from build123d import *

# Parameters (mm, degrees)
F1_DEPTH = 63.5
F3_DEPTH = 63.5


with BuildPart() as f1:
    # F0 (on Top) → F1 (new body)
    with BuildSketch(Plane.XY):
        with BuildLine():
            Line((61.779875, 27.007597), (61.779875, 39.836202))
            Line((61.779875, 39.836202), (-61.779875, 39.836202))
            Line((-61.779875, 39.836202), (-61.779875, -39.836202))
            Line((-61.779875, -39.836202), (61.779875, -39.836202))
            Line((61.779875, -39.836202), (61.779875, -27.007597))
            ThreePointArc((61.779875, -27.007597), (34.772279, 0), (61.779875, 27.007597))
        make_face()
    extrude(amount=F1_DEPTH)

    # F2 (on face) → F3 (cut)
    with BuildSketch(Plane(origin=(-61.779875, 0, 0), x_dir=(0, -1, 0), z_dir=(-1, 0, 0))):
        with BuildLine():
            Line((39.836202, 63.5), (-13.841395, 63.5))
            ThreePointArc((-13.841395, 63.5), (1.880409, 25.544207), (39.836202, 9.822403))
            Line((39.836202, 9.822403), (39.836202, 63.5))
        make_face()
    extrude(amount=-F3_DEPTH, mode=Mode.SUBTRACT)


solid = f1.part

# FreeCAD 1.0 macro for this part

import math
import FreeCAD as App
import Part
import Sketcher
Q = App.Units.Quantity

doc = App.newDocument("Part")
body = doc.addObject("PartDesign::Body", "Body")

# Sketch on XY plane
sketch1 = body.newObject("Sketcher::SketchObject", "Sketch")
sketch1.AttachmentSupport = (doc.getObject("XY_Plane"), [""])
sketch1.MapMode = "FlatFace"
sketch1.addGeometry([
    Part.LineSegment(App.Vector(62, 27, 0), App.Vector(62, 40, 0)),  # 0
    Part.LineSegment(App.Vector(62, 40, 0), App.Vector(-62, 40, 0)),  # 1
    Part.LineSegment(App.Vector(-62, 40, 0), App.Vector(-62, -40, 0)),  # 2
    Part.LineSegment(App.Vector(-62, -40, 0), App.Vector(62, -40, 0)),  # 3
    Part.LineSegment(App.Vector(62, -40, 0), App.Vector(62, -27, 0)),  # 4
    Part.ArcOfCircle(Part.Circle(App.Vector(62, 0, 0), App.Vector(0, 0, 1), 27), math.radians(90), math.radians(270)),  # 5
], False)
sketch1.addConstraint([
    Sketcher.Constraint("Coincident", 0, 2, 1, 1),
    Sketcher.Constraint("Coincident", 1, 2, 2, 1),
    Sketcher.Constraint("Coincident", 2, 2, 3, 1),
    Sketcher.Constraint("Coincident", 3, 2, 4, 1),
    Sketcher.Constraint("Coincident", 4, 2, 5, 2),
    Sketcher.Constraint("Coincident", 5, 1, 0, 1),
    Sketcher.Constraint("Vertical", 0),
    Sketcher.Constraint("Horizontal", 1),
    Sketcher.Constraint("Vertical", 2),
    Sketcher.Constraint("Horizontal", 3),
    Sketcher.Constraint("Vertical", 4),
    Sketcher.Constraint("Symmetric", 0, 2, 2, 2, -1, 1),
    Sketcher.Constraint("Symmetric", 4, 2, 5, 1, -1),
    Sketcher.Constraint("Vertical", 5, 3, 0, 2),
    Sketcher.Constraint("Radius", 5, Q("27.007597 mm")),
    Sketcher.Constraint("DistanceX", 1, 2, 1, 1, Q("123.55975 mm")),
    Sketcher.Constraint("DistanceY", 4, 2, 0, 2, Q("66.843799 mm")),
])
pad1 = body.newObject("PartDesign::Pad", "Pad")
pad1.Profile = sketch1
pad1.Length = Q("2.5 in")

# Sketch on YZ plane
sketch2 = body.newObject("Sketcher::SketchObject", "Sketch001")
sketch2.AttachmentSupport = (doc.getObject("YZ_Plane"), [""])
sketch2.MapMode = "FlatFace"
sketch2.AttachmentOffset = App.Placement(App.Vector(0, 0, -61.779875), App.Rotation())
sketch2.addGeometry([
    Part.LineSegment(App.Vector(-40, 64, 0), App.Vector(14, 64, 0)),
    Part.ArcOfCircle(Part.Circle(App.Vector(-40, 63, 0), App.Vector(0, 0, 1), 54), math.radians(-90), math.radians(0)),
    Part.LineSegment(App.Vector(-40, 10, 0), App.Vector(-40, 64, 0)),
], False)
sketch2.addConstraint([
    Sketcher.Constraint("Coincident", 0, 2, 1, 2),
    Sketcher.Constraint("Coincident", 1, 1, 2, 1),
    Sketcher.Constraint("Coincident", 2, 2, 0, 1),
    Sketcher.Constraint("Horizontal", 0),
    Sketcher.Constraint("Vertical", 2),
    Sketcher.Constraint("Coincident", 2, 2, 1, 3),
    Sketcher.Constraint("DistanceY", -1, 1, 1, 3, Q("2.5 in")),
    Sketcher.Constraint("Radius", 1, Q("53.677596 mm")),
    Sketcher.Constraint("DistanceX", 1, 3, -1, 1, Q("39.836201 mm")),
])
pocket1 = body.newObject("PartDesign::Pocket", "Pocket")
pocket1.Profile = sketch2
pocket1.Length = Q("2.5 in")
pocket1.Reversed = True

doc.recompute()
